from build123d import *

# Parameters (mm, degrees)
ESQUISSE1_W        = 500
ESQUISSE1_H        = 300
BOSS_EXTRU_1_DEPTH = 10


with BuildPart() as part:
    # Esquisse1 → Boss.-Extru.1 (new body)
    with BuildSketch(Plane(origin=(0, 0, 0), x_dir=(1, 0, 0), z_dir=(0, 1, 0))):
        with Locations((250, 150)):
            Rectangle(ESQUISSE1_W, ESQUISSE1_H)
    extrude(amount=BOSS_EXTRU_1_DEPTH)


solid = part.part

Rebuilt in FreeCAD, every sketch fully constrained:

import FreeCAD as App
import Part
import Sketcher

V = App.Vector


def add_polygon(sketch, points):
    """Adds a closed chain of lines whose ends are joined by coincident constraints."""
    first, n = sketch.GeometryCount, len(points)
    for a, b in zip(points, points[1:] + points[:1]):
        sketch.addGeometry(Part.LineSegment(App.Vector(*a, 0), App.Vector(*b, 0)), False)
    for i in range(n):
        sketch.addConstraint(Sketcher.Constraint("Coincident", first + i, 2, first + (i + 1) % n, 1))

doc = App.newDocument("Part")
body = doc.addObject("PartDesign::Body", "Body")

# Sketch on XZ plane
sketch1 = body.newObject("Sketcher::SketchObject", "Sketch")
sketch1.AttachmentSupport = (doc.getObject("XZ_Plane"), [""])
sketch1.MapMode = "FlatFace"
add_polygon(sketch1, [(0, -300), (0, 0), (500, 0), (500, -300)])  # lines 0-3
sketch1.addConstraint([
    Sketcher.Constraint("Vertical", 0),
    Sketcher.Constraint("Horizontal", 1),
    Sketcher.Constraint("Vertical", 2),
    Sketcher.Constraint("Horizontal", 3),
    Sketcher.Constraint("Coincident", 0, 2, -1, 1),
    Sketcher.Constraint("DistanceX", 1, 1, 1, 2, 500.0),
    Sketcher.Constraint("DistanceY", 0, 1, 0, 2, 300.0),
])
pad1 = body.newObject("PartDesign::Pad", "Pad")
pad1.Profile = sketch1
pad1.Length = 10
pad1.Reversed = True

doc.recompute()
